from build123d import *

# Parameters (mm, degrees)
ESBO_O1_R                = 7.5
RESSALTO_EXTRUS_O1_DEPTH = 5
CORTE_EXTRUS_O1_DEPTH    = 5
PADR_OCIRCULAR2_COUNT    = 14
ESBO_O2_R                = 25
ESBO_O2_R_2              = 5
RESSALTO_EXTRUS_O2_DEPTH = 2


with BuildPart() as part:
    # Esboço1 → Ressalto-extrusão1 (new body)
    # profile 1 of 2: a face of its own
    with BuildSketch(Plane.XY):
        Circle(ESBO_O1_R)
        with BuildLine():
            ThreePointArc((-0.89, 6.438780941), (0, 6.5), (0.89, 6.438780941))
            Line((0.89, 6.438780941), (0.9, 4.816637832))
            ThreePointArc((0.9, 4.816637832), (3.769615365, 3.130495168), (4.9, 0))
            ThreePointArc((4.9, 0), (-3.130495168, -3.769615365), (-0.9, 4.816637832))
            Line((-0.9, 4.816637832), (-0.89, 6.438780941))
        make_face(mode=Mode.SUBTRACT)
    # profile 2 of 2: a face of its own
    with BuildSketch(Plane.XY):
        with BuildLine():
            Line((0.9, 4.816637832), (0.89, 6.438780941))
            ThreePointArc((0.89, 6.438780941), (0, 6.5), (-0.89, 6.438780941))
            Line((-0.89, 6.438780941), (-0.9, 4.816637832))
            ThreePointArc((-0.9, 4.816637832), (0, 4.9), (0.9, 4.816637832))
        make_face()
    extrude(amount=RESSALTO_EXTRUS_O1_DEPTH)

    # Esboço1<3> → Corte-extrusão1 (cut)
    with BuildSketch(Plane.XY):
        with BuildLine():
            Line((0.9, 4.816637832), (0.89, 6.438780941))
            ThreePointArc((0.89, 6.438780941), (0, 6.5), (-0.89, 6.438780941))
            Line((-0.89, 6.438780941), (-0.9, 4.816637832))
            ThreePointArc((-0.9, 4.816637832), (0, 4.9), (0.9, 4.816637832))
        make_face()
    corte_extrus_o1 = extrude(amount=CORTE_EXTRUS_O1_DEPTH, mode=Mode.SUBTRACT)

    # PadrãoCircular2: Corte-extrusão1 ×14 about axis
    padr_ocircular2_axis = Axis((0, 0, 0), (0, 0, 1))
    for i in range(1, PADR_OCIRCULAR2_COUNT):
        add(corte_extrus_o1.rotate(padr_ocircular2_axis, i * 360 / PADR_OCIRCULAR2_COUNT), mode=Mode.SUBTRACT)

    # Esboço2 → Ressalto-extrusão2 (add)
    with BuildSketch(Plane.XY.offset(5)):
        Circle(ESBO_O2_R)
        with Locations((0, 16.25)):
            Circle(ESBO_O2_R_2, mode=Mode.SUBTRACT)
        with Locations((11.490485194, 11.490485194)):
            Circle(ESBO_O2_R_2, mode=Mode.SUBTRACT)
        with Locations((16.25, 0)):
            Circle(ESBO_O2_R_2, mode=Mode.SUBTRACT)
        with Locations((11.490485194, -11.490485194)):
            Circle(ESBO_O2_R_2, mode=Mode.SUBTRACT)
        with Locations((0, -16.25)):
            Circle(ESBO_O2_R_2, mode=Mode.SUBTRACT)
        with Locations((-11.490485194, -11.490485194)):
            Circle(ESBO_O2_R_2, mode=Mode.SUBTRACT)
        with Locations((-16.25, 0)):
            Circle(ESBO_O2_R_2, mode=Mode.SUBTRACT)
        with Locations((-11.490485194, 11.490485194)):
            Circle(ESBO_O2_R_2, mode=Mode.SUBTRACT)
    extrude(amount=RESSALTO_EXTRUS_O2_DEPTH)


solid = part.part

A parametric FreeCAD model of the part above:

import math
import FreeCAD as App
import Part
import Sketcher
Q = App.Units.Quantity

doc = App.newDocument("Part")
body = doc.addObject("PartDesign::Body", "Body")

# Sketch on XY plane
sketch1 = body.newObject("Sketcher::SketchObject", "Sketch")
sketch1.AttachmentSupport = (doc.getObject("XY_Plane"), [""])
sketch1.MapMode = "FlatFace"
sketch1.addGeometry([
    Part.Circle(App.Vector(0, 0, 0), App.Vector(0, 0, 1), 7.5),
    Part.ArcOfCircle(Part.Circle(App.Vector(0, 0, 0), App.Vector(0, 0, 1), 4.9), math.radians(101), math.radians(360)),
    Part.ArcOfCircle(Part.Circle(App.Vector(0, 0, 0), App.Vector(0, 0, 1), 4.9), math.radians(79), math.radians(101)),
    Part.ArcOfCircle(Part.Circle(App.Vector(0, 0, 0), App.Vector(0, 0, 1), 4.9), math.radians(0), math.radians(79)),
], False)
sketch1.addConstraint([
    Sketcher.Constraint("Tangent", 1, 1, 2, 2),
    Sketcher.Constraint("Tangent", 2, 1, 3, 2),
    Sketcher.Constraint("Tangent", 3, 1, 1, 2),
    Sketcher.Constraint("Coincident", 0, 3, -1, 1),
    Sketcher.Constraint("Coincident", 1, 3, -1, 1),
    Sketcher.Constraint("PointOnObject", 3, 1, -1),
    Sketcher.Constraint("Horizontal", 1, 1, 2, 1),
    Sketcher.Constraint("Diameter", 0, Q("15 mm")),
    Sketcher.Constraint("Radius", 1, Q("4.9 mm")),
    Sketcher.Constraint("DistanceX", 2, 1, 3, 1, Q("4 mm")),
])
pad1 = body.newObject("PartDesign::Pad", "Pad")
pad1.Profile = sketch1
pad1.Length = 5

# Sketch on XY plane
sketch2 = body.newObject("Sketcher::SketchObject", "Sketch001")
sketch2.AttachmentSupport = (doc.getObject("XY_Plane"), [""])
sketch2.MapMode = "FlatFace"
sketch2.addGeometry([
    Part.LineSegment(App.Vector(0.9, 4.8, 0), App.Vector(0.9, 6.4, 0)),
    Part.ArcOfCircle(Part.Circle(App.Vector(0, 0, 0), App.Vector(0, 0, 1), 6.5), math.radians(82.13), math.radians(97.87)),
    Part.LineSegment(App.Vector(-0.9, 6.4, 0), App.Vector(-0.9, 4.8, 0)),
    Part.ArcOfCircle(Part.Circle(App.Vector(0, 0, 0), App.Vector(0, 0, 1), 4.9), math.radians(79), math.radians(101)),
], False)
sketch2.addConstraint([
    Sketcher.Constraint("Coincident", 0, 2, 1, 1),
    Sketcher.Constraint("Coincident", 1, 2, 2, 1),
    Sketcher.Constraint("Coincident", 2, 2, 3, 2),
    Sketcher.Constraint("Coincident", 3, 1, 0, 1),
    Sketcher.Constraint("Coincident", 1, 3, -1, 1),
    Sketcher.Constraint("Coincident", 3, 3, -1, 1),
    Sketcher.Constraint("Horizontal", 0, 2, 1, 2),
    Sketcher.Constraint("Horizontal", 2, 2, 3, 1),
    Sketcher.Constraint("Radius", 1, Q("6.5 mm")),
    Sketcher.Constraint("Radius", 3, Q("4.9 mm")),
    Sketcher.Constraint("DistanceX", 2, 2, -1, 1, Q("0.9 mm")),
    Sketcher.Constraint("DistanceX", -1, 1, 0, 2, Q("0.89 mm")),
])
pocket1 = body.newObject("PartDesign::Pocket", "Pocket")
pocket1.Profile = sketch2
pocket1.Length = 5
pocket1.Reversed = True
doc.recompute()

polarpattern = body.newObject("PartDesign::PolarPattern", "PolarPattern")
polarpattern.Originals = [pocket1]
polarpattern.Axis = (doc.getObject("Z_Axis"), [""])
polarpattern.Angle = 360
polarpattern.Occurrences = 14
body.Tip = polarpattern

# Sketch on XY plane
sketch3 = body.newObject("Sketcher::SketchObject", "Sketch002")
sketch3.AttachmentSupport = (doc.getObject("XY_Plane"), [""])
sketch3.MapMode = "FlatFace"
sketch3.AttachmentOffset = App.Placement(App.Vector(0, 0, 5), App.Rotation())
sketch3.addGeometry([
    Part.Circle(App.Vector(0, 0, 0), App.Vector(0, 0, 1), 25),  # 0
    Part.Circle(App.Vector(-11, -11, 0), App.Vector(0, 0, 1), 5),  # 1
    Part.Circle(App.Vector(0, -16, 0), App.Vector(0, 0, 1), 5),  # 2
    Part.Circle(App.Vector(11, -11, 0), App.Vector(0, 0, 1), 5),  # 3
    Part.Circle(App.Vector(-16, 0, 0), App.Vector(0, 0, 1), 5),  # 4
    Part.Circle(App.Vector(-11, 11, 0), App.Vector(0, 0, 1), 5),  # 5
    Part.Circle(App.Vector(16, 0, 0), App.Vector(0, 0, 1), 5),  # 6
    Part.Circle(App.Vector(0, 16, 0), App.Vector(0, 0, 1), 5),  # 7
    Part.Circle(App.Vector(11, 11, 0), App.Vector(0, 0, 1), 5),  # 8
], False)
sketch3.addConstraint([
    Sketcher.Constraint("Coincident", 0, 3, -1, 1),
    Sketcher.Constraint("Equal", 1, 2),
    Sketcher.Constraint("Equal", 2, 3),
    Sketcher.Constraint("Equal", 3, 4),
    Sketcher.Constraint("Equal", 4, 5),
    Sketcher.Constraint("Equal", 5, 6),
    Sketcher.Constraint("Equal", 6, 7),
    Sketcher.Constraint("Equal", 7, 8),
    Sketcher.Constraint("Symmetric", 3, 3, 5, 3, -1, 1),
    Sketcher.Constraint("Symmetric", 4, 3, 6, 3, -1, 1),
    Sketcher.Constraint("Symmetric", 2, 3, 7, 3, -1, 1),
    Sketcher.Constraint("Symmetric", 1, 3, 8, 3, -1, 1),
    Sketcher.Constraint("Symmetric", 1, 3, 3, 3, -2),
    Sketcher.Constraint("PointOnObject", 2, 3, -2),
    Sketcher.Constraint("PointOnObject", 4, 3, -1),
    Sketcher.Constraint("Diameter", 0, Q("50 mm")),
    Sketcher.Constraint("Diameter", 1, Q("10 mm")),
    Sketcher.Constraint("DistanceY", 2, 3, -1, 1, Q("16.25 mm")),
    Sketcher.Constraint("DistanceX", 4, 3, -1, 1, Q("16.25 mm")),
    Sketcher.Constraint("DistanceX", 1, 3, 3, 3, Q("22.98097 mm")),
    Sketcher.Constraint("DistanceY", 1, 3, 5, 3, Q("22.98097 mm")),
])
pad2 = body.newObject("PartDesign::Pad", "Pad001")
pad2.Profile = sketch3
pad2.Length = 2

doc.recompute()
